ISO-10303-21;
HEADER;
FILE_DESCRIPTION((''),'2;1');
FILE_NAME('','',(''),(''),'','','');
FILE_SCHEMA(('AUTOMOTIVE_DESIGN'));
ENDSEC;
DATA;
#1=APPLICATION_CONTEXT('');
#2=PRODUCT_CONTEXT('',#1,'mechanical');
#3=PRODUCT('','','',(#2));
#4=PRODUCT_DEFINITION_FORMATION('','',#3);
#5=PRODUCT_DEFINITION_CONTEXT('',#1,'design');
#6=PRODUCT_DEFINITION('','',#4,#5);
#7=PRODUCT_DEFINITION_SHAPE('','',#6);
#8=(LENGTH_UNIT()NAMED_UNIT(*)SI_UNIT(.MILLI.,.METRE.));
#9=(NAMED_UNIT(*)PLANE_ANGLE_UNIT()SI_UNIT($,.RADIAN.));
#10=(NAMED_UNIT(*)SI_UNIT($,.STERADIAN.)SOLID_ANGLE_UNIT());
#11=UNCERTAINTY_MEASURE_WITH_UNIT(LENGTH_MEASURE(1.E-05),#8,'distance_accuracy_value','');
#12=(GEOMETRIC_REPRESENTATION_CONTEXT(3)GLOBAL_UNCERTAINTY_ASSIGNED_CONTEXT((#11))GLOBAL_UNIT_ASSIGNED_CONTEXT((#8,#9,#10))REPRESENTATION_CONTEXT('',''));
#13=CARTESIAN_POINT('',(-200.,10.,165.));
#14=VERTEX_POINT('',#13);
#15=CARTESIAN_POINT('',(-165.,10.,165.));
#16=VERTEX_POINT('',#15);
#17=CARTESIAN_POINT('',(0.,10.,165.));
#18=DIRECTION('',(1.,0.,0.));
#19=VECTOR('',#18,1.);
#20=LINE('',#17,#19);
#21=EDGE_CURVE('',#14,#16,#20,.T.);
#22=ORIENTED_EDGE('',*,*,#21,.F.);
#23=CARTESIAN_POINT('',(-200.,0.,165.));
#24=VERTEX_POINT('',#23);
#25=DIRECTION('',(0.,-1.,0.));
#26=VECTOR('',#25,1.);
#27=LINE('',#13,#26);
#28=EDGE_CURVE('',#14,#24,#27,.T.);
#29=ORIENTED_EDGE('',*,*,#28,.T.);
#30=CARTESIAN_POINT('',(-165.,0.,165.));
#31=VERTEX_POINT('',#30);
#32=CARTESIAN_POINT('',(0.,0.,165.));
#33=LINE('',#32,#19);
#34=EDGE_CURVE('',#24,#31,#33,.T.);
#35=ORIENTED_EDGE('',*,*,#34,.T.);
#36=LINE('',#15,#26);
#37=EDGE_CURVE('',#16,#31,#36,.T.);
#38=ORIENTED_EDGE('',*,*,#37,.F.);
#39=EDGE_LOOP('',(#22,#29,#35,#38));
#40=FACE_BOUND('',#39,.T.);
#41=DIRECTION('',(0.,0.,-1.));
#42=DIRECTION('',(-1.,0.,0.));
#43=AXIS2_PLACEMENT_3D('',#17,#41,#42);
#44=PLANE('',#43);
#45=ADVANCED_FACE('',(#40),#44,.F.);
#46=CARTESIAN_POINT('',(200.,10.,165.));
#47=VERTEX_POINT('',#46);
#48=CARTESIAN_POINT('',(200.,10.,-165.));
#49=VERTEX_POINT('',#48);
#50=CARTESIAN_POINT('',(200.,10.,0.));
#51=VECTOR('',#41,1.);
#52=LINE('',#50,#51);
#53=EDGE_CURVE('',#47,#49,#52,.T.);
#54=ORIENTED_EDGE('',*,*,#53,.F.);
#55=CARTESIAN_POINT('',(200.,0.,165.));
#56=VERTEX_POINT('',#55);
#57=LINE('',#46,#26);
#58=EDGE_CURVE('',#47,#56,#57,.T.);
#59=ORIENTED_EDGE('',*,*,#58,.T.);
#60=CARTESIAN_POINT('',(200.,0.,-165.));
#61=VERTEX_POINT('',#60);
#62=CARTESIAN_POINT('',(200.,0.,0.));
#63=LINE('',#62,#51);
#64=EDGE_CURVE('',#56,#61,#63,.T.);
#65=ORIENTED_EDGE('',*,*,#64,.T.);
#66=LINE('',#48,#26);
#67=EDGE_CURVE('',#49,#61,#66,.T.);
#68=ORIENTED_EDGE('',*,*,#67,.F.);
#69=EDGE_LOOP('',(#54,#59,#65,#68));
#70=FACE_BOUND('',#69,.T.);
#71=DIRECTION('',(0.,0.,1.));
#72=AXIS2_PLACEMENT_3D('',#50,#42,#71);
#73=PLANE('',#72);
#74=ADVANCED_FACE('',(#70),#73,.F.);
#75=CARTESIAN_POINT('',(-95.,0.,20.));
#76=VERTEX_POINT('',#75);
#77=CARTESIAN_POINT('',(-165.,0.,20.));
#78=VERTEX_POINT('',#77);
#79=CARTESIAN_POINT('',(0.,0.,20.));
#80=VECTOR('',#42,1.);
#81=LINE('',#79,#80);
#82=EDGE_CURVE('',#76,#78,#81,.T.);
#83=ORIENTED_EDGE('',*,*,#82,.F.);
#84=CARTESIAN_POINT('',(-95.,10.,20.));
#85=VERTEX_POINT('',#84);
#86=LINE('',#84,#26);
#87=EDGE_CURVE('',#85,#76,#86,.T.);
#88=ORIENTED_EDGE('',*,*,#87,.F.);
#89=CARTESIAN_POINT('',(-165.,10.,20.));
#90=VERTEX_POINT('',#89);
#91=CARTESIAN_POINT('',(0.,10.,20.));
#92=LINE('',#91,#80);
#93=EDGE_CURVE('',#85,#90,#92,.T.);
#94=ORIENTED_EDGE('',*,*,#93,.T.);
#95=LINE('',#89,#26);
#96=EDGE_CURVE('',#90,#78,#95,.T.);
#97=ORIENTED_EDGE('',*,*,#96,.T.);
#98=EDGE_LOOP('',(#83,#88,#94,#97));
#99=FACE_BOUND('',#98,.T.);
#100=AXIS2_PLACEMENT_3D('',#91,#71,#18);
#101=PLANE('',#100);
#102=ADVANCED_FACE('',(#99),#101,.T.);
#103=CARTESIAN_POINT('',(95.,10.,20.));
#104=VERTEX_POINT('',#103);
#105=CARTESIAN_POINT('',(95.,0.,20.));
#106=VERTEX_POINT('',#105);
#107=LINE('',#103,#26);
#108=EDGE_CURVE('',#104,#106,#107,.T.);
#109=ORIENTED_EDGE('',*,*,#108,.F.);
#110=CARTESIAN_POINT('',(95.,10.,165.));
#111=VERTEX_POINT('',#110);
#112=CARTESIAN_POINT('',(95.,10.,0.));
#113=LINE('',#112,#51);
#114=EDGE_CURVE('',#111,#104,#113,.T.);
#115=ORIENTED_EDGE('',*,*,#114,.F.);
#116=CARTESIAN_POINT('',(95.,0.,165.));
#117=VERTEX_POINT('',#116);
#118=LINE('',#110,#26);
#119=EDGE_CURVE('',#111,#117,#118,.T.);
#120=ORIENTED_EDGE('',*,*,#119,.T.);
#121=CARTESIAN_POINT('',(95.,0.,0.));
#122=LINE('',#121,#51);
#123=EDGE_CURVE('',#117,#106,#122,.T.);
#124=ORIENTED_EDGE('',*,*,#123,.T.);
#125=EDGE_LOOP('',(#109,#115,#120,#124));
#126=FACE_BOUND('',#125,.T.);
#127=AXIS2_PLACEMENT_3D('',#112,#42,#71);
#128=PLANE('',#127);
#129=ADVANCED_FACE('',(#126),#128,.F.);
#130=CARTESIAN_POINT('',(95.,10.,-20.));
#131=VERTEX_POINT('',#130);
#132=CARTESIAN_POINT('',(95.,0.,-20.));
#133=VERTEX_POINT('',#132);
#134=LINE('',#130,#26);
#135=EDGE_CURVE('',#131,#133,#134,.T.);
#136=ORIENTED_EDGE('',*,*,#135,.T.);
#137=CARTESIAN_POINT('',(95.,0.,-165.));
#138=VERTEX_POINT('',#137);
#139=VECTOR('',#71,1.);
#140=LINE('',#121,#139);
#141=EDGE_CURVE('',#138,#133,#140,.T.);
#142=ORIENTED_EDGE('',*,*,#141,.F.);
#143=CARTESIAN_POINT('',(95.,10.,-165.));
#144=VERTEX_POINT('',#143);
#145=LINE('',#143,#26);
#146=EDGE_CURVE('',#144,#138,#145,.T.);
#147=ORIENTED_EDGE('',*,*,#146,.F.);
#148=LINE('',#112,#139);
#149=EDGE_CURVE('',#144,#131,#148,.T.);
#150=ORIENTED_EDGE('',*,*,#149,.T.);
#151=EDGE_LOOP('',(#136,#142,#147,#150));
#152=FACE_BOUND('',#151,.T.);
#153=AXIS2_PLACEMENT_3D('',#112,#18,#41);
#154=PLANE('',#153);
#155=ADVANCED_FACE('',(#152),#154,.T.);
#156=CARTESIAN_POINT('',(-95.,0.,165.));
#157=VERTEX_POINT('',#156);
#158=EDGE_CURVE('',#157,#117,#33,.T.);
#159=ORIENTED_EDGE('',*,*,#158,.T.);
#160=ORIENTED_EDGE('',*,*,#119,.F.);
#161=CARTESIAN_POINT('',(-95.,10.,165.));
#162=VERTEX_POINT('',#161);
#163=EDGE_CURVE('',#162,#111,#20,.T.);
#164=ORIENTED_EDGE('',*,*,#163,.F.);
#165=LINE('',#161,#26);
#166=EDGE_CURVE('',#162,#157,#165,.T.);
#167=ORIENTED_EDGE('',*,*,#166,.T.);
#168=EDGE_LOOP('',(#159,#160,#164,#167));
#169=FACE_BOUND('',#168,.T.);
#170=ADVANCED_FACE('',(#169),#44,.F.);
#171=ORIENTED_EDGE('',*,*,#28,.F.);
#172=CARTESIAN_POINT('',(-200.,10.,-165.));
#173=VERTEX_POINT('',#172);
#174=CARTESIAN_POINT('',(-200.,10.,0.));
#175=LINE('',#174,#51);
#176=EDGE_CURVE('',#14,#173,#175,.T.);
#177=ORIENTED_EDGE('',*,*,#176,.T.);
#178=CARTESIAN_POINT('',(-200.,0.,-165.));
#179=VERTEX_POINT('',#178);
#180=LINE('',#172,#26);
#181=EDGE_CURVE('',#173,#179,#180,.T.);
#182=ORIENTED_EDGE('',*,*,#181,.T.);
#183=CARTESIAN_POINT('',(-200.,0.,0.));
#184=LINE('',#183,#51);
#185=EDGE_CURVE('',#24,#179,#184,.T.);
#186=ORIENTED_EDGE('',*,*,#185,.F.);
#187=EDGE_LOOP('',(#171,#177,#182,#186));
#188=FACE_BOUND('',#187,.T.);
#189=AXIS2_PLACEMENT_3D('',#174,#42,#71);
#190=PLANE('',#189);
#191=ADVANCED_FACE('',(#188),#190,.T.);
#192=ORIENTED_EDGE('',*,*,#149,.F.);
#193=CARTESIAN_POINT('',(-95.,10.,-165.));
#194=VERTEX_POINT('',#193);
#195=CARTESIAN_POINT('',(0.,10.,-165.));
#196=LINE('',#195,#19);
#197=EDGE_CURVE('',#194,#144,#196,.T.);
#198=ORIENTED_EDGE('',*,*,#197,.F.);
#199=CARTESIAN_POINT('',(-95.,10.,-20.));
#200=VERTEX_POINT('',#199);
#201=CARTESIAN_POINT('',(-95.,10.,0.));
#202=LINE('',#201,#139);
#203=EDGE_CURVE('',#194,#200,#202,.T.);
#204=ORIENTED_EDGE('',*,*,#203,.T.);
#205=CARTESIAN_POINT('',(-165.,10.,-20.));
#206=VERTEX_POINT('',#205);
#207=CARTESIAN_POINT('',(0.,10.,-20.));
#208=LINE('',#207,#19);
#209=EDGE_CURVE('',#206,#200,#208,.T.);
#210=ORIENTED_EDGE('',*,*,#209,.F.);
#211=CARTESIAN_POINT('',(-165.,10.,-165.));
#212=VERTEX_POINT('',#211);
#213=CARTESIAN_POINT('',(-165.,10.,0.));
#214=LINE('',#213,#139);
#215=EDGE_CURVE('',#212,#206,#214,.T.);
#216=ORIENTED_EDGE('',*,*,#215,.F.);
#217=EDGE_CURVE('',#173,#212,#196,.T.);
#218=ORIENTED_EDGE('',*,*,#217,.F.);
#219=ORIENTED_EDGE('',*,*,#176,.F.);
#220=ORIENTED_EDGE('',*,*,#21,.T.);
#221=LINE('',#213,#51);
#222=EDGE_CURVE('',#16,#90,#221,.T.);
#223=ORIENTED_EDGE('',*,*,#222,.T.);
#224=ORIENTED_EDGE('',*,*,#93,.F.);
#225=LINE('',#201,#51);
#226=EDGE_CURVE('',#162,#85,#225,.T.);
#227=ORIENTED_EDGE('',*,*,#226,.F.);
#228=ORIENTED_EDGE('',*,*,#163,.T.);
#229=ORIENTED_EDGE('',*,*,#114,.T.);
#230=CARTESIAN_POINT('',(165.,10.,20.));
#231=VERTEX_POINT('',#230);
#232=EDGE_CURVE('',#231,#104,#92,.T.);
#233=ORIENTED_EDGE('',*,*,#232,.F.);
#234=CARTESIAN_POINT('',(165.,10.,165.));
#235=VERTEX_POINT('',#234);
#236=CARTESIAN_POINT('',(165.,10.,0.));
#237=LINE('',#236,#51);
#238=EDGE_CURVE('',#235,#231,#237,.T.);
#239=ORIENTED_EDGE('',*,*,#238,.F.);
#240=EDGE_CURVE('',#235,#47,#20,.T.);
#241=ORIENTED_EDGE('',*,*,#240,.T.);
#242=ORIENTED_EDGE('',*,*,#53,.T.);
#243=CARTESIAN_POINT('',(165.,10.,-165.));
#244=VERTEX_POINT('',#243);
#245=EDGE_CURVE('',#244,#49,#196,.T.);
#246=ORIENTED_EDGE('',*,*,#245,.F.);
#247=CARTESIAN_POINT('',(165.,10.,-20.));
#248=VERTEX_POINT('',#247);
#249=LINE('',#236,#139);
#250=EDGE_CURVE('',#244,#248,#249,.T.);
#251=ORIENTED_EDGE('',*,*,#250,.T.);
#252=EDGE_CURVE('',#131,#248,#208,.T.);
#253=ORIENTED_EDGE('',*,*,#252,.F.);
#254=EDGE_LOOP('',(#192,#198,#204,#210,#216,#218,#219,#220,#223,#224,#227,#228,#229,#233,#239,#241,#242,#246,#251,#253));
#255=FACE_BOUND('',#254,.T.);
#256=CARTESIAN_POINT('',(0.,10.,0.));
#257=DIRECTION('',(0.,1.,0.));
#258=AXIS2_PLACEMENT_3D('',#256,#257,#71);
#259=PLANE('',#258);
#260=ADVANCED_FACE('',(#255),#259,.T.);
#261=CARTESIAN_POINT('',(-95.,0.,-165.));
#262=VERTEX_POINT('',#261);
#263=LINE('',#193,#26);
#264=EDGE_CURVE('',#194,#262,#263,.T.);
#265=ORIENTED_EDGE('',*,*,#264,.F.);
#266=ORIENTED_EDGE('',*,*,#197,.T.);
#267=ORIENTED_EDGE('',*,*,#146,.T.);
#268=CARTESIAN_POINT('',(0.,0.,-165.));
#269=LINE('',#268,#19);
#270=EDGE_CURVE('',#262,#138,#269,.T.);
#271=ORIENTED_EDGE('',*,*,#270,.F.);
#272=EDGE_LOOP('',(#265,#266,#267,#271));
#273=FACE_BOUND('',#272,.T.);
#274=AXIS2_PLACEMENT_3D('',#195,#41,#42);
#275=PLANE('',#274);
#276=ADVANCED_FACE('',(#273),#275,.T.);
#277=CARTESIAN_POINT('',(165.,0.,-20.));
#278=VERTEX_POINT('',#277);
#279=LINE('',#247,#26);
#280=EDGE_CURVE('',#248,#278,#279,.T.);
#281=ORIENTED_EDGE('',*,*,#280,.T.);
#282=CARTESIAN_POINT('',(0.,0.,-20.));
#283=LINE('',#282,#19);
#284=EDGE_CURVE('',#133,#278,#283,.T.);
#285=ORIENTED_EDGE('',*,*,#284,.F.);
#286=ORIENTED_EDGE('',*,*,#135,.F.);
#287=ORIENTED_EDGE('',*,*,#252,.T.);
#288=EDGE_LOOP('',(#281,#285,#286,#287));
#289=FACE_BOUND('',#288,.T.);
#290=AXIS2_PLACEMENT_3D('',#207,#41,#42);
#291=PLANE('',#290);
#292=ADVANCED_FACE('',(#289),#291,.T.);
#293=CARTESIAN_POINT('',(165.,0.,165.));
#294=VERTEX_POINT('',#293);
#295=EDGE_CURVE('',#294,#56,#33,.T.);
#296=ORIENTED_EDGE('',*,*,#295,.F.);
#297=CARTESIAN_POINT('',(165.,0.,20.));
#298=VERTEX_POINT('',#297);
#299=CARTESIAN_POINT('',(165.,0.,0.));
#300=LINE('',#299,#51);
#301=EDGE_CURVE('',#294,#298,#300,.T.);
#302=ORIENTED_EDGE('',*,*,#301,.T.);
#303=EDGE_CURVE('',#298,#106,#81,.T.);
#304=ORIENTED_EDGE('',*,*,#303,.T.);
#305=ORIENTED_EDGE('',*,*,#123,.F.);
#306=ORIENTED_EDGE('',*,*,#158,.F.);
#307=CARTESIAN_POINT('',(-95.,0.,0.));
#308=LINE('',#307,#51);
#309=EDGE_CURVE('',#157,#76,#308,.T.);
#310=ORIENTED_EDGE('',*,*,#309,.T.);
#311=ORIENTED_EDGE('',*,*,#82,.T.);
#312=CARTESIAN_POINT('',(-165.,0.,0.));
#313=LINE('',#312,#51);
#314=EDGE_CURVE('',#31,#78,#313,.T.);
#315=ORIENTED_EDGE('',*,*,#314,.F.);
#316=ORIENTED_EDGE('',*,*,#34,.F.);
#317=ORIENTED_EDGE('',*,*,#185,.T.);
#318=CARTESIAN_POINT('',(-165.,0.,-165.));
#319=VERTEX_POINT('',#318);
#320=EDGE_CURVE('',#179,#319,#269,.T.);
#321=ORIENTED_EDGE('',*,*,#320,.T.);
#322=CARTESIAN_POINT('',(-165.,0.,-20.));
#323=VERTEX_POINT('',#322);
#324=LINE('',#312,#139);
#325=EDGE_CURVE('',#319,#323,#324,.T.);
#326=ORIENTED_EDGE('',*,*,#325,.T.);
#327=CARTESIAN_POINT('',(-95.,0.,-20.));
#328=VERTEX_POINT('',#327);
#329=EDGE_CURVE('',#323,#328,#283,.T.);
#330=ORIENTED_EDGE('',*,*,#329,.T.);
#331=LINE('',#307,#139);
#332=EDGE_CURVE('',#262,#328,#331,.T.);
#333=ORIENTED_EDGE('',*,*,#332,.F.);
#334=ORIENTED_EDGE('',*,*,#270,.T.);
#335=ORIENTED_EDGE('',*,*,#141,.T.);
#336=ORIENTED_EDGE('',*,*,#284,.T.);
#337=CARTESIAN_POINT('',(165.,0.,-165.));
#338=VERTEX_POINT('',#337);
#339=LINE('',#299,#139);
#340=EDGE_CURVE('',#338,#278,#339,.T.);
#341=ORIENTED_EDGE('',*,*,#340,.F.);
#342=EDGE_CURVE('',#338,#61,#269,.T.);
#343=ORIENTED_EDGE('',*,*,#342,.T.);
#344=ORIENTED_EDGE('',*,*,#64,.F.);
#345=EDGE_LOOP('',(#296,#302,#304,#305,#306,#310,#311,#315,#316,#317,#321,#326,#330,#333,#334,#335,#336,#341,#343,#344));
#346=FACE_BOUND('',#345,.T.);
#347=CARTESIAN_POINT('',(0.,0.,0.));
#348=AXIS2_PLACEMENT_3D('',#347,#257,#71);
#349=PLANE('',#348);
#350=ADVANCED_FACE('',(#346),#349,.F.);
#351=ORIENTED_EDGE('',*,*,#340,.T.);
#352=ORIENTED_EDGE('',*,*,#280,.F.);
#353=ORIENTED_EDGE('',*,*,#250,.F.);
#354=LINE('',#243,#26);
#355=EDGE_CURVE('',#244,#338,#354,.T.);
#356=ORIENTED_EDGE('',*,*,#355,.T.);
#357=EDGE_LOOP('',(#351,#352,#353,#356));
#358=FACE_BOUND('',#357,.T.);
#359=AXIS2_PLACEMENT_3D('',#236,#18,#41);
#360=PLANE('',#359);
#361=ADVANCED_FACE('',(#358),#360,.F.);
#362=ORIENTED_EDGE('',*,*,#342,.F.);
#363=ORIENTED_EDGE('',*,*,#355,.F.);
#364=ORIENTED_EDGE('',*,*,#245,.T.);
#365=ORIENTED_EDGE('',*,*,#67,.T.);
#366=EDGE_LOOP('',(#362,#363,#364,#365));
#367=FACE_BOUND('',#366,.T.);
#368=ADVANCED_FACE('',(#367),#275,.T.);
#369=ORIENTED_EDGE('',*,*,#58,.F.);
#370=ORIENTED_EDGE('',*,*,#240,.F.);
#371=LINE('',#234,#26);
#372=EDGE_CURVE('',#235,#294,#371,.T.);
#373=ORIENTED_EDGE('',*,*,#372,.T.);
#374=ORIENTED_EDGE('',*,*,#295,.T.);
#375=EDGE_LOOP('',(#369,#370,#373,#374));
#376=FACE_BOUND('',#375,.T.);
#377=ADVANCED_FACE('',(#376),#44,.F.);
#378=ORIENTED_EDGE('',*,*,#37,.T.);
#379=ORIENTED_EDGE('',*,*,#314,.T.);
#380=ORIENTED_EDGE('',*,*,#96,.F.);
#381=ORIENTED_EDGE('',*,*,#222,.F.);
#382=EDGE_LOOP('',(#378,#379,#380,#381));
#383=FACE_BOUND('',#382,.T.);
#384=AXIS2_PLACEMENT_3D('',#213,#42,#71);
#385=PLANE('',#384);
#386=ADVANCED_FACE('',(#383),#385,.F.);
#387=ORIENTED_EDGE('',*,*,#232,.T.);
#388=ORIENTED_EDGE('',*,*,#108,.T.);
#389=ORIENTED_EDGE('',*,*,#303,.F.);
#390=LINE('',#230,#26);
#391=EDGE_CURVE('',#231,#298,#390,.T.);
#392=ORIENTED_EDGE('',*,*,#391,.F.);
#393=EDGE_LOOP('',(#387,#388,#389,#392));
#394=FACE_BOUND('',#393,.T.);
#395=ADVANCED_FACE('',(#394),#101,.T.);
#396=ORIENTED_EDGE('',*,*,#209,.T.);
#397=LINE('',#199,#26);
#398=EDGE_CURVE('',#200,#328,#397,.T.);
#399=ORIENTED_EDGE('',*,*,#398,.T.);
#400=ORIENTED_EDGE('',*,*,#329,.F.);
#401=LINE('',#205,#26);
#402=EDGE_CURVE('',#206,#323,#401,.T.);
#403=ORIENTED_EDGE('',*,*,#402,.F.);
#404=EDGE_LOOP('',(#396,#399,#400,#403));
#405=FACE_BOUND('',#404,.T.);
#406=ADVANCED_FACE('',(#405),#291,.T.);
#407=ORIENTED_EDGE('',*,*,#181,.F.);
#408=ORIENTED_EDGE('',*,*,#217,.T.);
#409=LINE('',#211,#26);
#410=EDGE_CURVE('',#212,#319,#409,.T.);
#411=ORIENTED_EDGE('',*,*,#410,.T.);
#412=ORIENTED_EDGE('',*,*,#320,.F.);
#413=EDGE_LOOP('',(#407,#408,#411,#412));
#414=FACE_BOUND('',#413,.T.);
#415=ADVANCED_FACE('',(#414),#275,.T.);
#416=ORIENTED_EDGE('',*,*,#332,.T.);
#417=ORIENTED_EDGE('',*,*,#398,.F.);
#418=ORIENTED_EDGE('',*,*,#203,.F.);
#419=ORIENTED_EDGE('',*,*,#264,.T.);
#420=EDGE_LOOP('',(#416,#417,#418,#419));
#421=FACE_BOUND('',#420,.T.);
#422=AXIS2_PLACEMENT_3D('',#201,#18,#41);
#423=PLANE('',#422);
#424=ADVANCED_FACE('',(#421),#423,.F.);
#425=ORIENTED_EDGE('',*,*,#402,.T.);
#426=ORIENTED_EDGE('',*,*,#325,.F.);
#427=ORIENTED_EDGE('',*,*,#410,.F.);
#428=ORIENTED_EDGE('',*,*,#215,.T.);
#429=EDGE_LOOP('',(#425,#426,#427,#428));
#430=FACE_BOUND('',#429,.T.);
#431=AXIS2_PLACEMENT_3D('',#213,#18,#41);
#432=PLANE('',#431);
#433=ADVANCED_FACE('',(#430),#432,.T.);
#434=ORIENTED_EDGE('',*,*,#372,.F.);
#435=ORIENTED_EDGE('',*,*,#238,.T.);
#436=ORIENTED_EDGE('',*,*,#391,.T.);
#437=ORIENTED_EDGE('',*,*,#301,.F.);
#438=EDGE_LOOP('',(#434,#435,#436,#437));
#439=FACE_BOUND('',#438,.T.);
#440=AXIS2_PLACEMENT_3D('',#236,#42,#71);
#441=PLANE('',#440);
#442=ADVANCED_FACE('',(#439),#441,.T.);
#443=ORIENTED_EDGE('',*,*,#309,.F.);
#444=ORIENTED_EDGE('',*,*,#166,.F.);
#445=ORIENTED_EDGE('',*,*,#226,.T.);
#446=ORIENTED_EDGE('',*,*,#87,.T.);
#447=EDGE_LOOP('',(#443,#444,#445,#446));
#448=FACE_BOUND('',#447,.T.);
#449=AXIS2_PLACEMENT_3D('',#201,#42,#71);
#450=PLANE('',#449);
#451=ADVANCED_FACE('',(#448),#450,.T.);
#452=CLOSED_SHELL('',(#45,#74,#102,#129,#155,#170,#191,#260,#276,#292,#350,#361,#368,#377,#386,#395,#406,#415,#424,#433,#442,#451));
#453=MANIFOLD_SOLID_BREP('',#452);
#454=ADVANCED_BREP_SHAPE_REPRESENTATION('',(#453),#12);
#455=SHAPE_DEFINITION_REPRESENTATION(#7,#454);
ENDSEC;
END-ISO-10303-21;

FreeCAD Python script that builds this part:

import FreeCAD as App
import Part
import Sketcher

V = App.Vector
Q = App.Units.Quantity


def add_polygon(sketch, points):
    """Adds a closed chain of lines whose ends are joined by coincident constraints."""
    first, n = sketch.GeometryCount, len(points)
    for a, b in zip(points, points[1:] + points[:1]):
        sketch.addGeometry(Part.LineSegment(App.Vector(*a, 0), App.Vector(*b, 0)), False)
    for i in range(n):
        sketch.addConstraint(Sketcher.Constraint("Coincident", first + i, 2, first + (i + 1) % n, 1))

doc = App.newDocument("Part")
body = doc.addObject("PartDesign::Body", "Body")

# Sketch on XZ plane
sketch1 = body.newObject("Sketcher::SketchObject", "Sketch")
sketch1.AttachmentSupport = (doc.getObject("XZ_Plane"), [""])
sketch1.MapMode = "FlatFace"
add_polygon(sketch1, [(-200, -165), (-200, 165), (-165, 165), (-165, 20), (-95, 20), (-95, 165), (95, 165), (95, 20), (165, 20), (165, 165), (200, 165), (200, -165), (165, -165), (165, -20), (95, -20), (95, -165), (-95, -165), (-95, -20), (-165, -20), (-165, -165)])  # lines 0-19
sketch1.addConstraint(Sketcher.Constraint("Vertical", 0))
sketch1.addConstraint(Sketcher.Constraint("Horizontal", 1))
sketch1.addConstraint(Sketcher.Constraint("Vertical", 2))
sketch1.addConstraint(Sketcher.Constraint("Horizontal", 3))
sketch1.addConstraint(Sketcher.Constraint("Vertical", 4))
sketch1.addConstraint(Sketcher.Constraint("Horizontal", 5))
sketch1.addConstraint(Sketcher.Constraint("Vertical", 6))
sketch1.addConstraint(Sketcher.Constraint("Horizontal", 7))
sketch1.addConstraint(Sketcher.Constraint("Vertical", 8))
sketch1.addConstraint(Sketcher.Constraint("Horizontal", 9))
sketch1.addConstraint(Sketcher.Constraint("Vertical", 10))
sketch1.addConstraint(Sketcher.Constraint("Horizontal", 11))
sketch1.addConstraint(Sketcher.Constraint("Vertical", 12))
sketch1.addConstraint(Sketcher.Constraint("Horizontal", 13))
sketch1.addConstraint(Sketcher.Constraint("Vertical", 14))
sketch1.addConstraint(Sketcher.Constraint("Horizontal", 15))
sketch1.addConstraint(Sketcher.Constraint("Vertical", 16))
sketch1.addConstraint(Sketcher.Constraint("Horizontal", 17))
sketch1.addConstraint(Sketcher.Constraint("Vertical", 18))
sketch1.addConstraint(Sketcher.Constraint("Horizontal", 19))
sketch1.addConstraint(Sketcher.Constraint("Symmetric", 0, 2, 10, 2, -1, 1))
sketch1.addConstraint(Sketcher.Constraint("Symmetric", 2, 2, 12, 2, -1, 1))
sketch1.addConstraint(Sketcher.Constraint("Symmetric", 4, 2, 14, 2, -1, 1))
sketch1.addConstraint(Sketcher.Constraint("Symmetric", 6, 2, 16, 2, -1, 1))
sketch1.addConstraint(Sketcher.Constraint("Symmetric", 8, 2, 18, 2, -1, 1))
sketch1.addConstraint(Sketcher.Constraint("Symmetric", 3, 2, 6, 2, -2))
sketch1.addConstraint(Sketcher.Constraint("Symmetric", 1, 2, 8, 2, -2))
sketch1.addConstraint(Sketcher.Constraint("Horizontal", 1, 2, 4, 2))
sketch1.addConstraint(Sketcher.Constraint("DistanceX", 1, 1, 1, 2, Q("35 mm")))
sketch1.addConstraint(Sketcher.Constraint("DistanceX", 3, 1, 3, 2, Q("70 mm")))
sketch1.addConstraint(Sketcher.Constraint("DistanceX", 5, 1, 5, 2, Q("190 mm")))
sketch1.addConstraint(Sketcher.Constraint("DistanceY", 0, 1, 0, 2, Q("330 mm")))
sketch1.addConstraint(Sketcher.Constraint("DistanceY", 2, 2, 2, 1, Q("145 mm")))
pad1 = body.newObject("PartDesign::Pad", "Pad")
pad1.Profile = sketch1
pad1.Length = 10
pad1.Reversed = True

doc.recompute()
